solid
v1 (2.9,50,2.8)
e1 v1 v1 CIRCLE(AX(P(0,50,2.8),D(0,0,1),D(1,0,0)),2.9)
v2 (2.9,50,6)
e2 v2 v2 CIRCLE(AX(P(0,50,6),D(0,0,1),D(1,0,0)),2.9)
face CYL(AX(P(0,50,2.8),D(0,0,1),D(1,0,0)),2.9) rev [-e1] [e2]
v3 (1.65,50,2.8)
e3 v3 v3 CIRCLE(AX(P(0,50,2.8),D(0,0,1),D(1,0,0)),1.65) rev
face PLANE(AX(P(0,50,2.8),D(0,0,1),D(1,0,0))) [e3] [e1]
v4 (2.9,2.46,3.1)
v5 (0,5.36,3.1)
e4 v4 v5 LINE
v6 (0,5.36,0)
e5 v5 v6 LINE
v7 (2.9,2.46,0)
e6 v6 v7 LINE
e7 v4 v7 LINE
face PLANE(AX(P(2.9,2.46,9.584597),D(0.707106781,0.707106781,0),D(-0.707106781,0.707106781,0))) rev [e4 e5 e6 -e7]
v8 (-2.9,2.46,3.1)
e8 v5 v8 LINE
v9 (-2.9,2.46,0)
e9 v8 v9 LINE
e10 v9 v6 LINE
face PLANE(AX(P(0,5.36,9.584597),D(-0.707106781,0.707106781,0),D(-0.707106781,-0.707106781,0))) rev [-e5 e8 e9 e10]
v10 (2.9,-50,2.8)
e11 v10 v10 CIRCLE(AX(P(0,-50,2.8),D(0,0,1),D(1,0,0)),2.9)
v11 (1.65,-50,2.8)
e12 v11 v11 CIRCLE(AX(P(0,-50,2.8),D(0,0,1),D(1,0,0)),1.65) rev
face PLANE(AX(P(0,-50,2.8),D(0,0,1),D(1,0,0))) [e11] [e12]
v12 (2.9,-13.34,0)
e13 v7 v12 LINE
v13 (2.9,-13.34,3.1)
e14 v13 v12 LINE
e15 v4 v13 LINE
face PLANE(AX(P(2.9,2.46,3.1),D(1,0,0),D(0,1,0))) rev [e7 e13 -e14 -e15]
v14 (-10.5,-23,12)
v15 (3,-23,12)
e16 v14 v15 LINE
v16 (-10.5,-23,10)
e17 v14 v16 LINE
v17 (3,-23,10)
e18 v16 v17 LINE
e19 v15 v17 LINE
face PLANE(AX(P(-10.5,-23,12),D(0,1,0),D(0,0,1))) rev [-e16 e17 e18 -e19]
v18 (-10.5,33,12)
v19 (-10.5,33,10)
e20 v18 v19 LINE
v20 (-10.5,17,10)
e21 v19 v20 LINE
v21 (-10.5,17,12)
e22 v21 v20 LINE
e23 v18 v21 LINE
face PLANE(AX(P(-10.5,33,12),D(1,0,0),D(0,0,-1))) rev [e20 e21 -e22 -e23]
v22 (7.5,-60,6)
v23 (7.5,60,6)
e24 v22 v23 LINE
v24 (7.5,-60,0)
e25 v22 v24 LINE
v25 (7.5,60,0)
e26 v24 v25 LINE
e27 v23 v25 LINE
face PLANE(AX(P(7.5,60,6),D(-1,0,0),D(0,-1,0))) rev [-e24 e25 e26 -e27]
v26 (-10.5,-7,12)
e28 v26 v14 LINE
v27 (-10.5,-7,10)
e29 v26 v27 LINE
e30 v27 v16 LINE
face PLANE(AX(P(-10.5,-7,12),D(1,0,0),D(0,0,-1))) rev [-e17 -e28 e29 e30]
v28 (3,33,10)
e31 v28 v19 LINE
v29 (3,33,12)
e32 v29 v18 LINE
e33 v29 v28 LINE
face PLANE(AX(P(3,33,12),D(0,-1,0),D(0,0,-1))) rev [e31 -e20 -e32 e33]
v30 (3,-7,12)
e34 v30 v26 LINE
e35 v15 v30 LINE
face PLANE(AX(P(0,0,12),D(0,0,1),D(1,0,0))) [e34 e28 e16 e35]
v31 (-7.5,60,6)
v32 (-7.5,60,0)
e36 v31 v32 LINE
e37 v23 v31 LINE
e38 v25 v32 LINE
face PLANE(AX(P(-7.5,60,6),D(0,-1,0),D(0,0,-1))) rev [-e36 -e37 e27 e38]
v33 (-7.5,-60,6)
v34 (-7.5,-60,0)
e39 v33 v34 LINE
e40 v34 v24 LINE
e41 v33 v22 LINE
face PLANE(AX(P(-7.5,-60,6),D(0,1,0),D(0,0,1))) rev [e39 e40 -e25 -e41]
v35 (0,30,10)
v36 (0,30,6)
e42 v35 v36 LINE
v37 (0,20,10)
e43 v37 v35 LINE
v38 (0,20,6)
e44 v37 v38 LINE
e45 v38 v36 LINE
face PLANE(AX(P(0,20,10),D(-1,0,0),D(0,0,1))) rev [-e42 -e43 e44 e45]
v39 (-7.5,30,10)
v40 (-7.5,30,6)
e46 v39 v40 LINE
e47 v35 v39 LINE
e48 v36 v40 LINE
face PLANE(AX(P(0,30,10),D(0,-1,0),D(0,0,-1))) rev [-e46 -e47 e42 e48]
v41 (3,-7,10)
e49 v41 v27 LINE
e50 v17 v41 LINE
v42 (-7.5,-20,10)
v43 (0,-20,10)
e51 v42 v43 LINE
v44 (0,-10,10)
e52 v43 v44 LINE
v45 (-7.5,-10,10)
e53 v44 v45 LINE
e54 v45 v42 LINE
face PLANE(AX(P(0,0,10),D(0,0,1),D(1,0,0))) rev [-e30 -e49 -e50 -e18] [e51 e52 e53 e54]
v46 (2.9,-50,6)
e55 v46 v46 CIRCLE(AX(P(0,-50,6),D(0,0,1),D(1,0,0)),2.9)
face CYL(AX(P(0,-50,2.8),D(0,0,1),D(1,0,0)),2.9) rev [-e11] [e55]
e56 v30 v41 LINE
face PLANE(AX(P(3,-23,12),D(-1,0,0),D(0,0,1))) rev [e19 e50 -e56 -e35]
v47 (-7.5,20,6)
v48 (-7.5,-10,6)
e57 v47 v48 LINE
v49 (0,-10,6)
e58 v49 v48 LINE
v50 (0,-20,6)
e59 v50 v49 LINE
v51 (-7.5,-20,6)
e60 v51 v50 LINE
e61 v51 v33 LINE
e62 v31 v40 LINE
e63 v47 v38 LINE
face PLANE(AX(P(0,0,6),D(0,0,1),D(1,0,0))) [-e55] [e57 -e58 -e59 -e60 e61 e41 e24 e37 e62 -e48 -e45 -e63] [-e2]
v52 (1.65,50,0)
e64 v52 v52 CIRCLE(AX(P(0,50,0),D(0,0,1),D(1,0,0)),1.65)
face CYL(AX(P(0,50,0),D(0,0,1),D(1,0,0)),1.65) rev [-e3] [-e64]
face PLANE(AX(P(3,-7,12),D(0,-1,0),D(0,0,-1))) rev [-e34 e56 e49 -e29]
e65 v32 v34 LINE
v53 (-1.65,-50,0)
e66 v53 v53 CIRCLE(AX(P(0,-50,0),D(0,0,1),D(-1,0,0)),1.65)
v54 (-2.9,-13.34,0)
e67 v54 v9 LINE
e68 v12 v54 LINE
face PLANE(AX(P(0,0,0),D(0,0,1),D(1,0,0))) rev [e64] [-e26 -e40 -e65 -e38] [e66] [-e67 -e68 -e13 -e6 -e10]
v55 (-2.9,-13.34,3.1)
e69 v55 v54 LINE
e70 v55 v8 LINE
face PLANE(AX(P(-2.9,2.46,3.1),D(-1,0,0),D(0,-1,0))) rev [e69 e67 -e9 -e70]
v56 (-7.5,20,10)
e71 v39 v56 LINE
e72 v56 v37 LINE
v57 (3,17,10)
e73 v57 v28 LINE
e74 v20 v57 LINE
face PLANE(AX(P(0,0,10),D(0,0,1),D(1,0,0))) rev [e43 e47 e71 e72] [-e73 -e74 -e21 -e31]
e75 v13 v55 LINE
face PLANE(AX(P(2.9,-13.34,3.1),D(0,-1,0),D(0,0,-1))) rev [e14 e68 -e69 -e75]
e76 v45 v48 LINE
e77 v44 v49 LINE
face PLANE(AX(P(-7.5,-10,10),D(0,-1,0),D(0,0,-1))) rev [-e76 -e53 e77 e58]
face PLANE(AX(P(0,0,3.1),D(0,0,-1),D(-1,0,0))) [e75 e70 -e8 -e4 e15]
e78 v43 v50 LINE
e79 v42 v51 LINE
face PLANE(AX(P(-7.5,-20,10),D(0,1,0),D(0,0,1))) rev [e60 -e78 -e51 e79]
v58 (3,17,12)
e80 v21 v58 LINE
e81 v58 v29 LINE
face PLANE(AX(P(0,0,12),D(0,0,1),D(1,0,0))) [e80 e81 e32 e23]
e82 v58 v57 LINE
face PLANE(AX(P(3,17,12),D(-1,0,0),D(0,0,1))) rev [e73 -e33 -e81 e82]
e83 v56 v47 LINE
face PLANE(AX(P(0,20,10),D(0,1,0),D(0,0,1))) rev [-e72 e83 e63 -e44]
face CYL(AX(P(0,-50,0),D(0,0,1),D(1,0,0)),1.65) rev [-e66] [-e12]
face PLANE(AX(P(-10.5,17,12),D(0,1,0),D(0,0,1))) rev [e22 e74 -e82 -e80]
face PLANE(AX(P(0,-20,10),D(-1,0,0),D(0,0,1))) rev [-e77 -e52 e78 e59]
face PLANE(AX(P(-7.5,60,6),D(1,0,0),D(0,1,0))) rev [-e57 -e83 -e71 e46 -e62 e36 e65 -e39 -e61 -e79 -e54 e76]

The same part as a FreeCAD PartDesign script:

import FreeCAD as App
import Part
import Sketcher


def add_polygon(sketch, points):
    """Adds a closed chain of lines whose ends are joined by coincident constraints."""
    first, n = sketch.GeometryCount, len(points)
    for a, b in zip(points, points[1:] + points[:1]):
        sketch.addGeometry(Part.LineSegment(App.Vector(*a, 0), App.Vector(*b, 0)), False)
    for i in range(n):
        sketch.addConstraint(Sketcher.Constraint("Coincident", first + i, 2, first + (i + 1) % n, 1))

doc = App.newDocument("Part")
body = doc.addObject("PartDesign::Body", "Body")

# Sketch on XY plane
sketch1 = body.newObject("Sketcher::SketchObject", "Sketch")
sketch1.AttachmentSupport = (doc.getObject("XY_Plane"), [""])
sketch1.MapMode = "FlatFace"
add_polygon(sketch1, [(-8, 60), (-8, -60), (8, -60), (8, 60)])  # lines 0-3
sketch1.addConstraint([
    Sketcher.Constraint("Vertical", 0),
    Sketcher.Constraint("Horizontal", 1),
    Sketcher.Constraint("Vertical", 2),
    Sketcher.Constraint("Horizontal", 3),
    Sketcher.Constraint("Symmetric", 0, 2, 2, 2, -1, 1),
    Sketcher.Constraint("DistanceX", 1, 1, 1, 2, 15.0),
    Sketcher.Constraint("DistanceY", 0, 2, 0, 1, 120.0),
])
pad1 = body.newObject("PartDesign::Pad", "Pad")
pad1.Profile = sketch1
pad1.Length = 6

# Sketch on XY plane
sketch2 = body.newObject("Sketcher::SketchObject", "Sketch001")
sketch2.AttachmentSupport = (doc.getObject("XY_Plane"), [""])
sketch2.MapMode = "FlatFace"
sketch2.AttachmentOffset = App.Placement(App.Vector(0, 0, 6), App.Rotation())
sketch2.addGeometry([
    Part.Circle(App.Vector(0, 50, 0), App.Vector(0, 0, 1), 1.6),
    Part.Circle(App.Vector(0, -50, 0), App.Vector(0, 0, 1), 1.6),
], False)
sketch2.addConstraint([
    Sketcher.Constraint("Equal", 0, 1),
    Sketcher.Constraint("Symmetric", 0, 3, 1, 3, -1, 1),
    Sketcher.Constraint("PointOnObject", 0, 3, -2),
    Sketcher.Constraint("Diameter", 0, 3.3),
    Sketcher.Constraint("DistanceY", -1, 1, 0, 3, 50.0),
])
pocket1 = body.newObject("PartDesign::Pocket", "Pocket")
pocket1.Profile = sketch2
pocket1.Type = "ThroughAll"

# Sketch on XY plane
sketch3 = body.newObject("Sketcher::SketchObject", "Sketch002")
sketch3.AttachmentSupport = (doc.getObject("XY_Plane"), [""])
sketch3.MapMode = "FlatFace"
add_polygon(sketch3, [(3, 2), (3, -13), (-3, -13), (-3, 2)])  # lines 0-3
sketch3.addConstraint([
    Sketcher.Constraint("Vertical", 0),
    Sketcher.Constraint("Horizontal", 1),
    Sketcher.Constraint("Vertical", 2),
    Sketcher.Constraint("Horizontal", 3),
    Sketcher.Constraint("DistanceX", 1, 2, 1, 1, 5.8),
    Sketcher.Constraint("DistanceY", 0, 2, 0, 1, 15.8),
    Sketcher.Constraint("DistanceX", -1, 1, 0, 2, 2.9),
    Sketcher.Constraint("DistanceY", 0, 2, -1, 1, 13.34),
])
pocket2 = body.newObject("PartDesign::Pocket", "Pocket001")
pocket2.Profile = sketch3
pocket2.Length = 3.1
pocket2.Reversed = True

# Sketch on XY plane
sketch4 = body.newObject("Sketcher::SketchObject", "Sketch003")
sketch4.AttachmentSupport = (doc.getObject("XY_Plane"), [""])
sketch4.MapMode = "FlatFace"
add_polygon(sketch4, [(0, 5.4), (2.9, 2.5), (-2.9, 2.5)])  # lines 0-2
sketch4.addConstraint([
    Sketcher.Constraint("Horizontal", 1),
    Sketcher.Constraint("PointOnObject", 2, 2, -2),
    Sketcher.Constraint("Perpendicular", 0, 2),
    Sketcher.Constraint("Equal", 0, 2),
    Sketcher.Constraint("DistanceX", 1, 2, 1, 1, 5.8),
    Sketcher.Constraint("DistanceY", -1, 1, 0, 2, 2.46),
])
pocket3 = body.newObject("PartDesign::Pocket", "Pocket002")
pocket3.Profile = sketch4
pocket3.Length = 3.1
pocket3.Reversed = True

# Sketch on XY plane
sketch5 = body.newObject("Sketcher::SketchObject", "Sketch004")
sketch5.AttachmentSupport = (doc.getObject("XY_Plane"), [""])
sketch5.MapMode = "FlatFace"
sketch5.AttachmentOffset = App.Placement(App.Vector(0, 0, 6), App.Rotation())
sketch5.addGeometry([
    Part.Circle(App.Vector(0, 50, 0), App.Vector(0, 0, 1), 2.9),
    Part.Circle(App.Vector(0, -50, 0), App.Vector(0, 0, 1), 2.9),
], False)
sketch5.addConstraint([
    Sketcher.Constraint("Equal", 0, 1),
    Sketcher.Constraint("Symmetric", 0, 3, 1, 3, -1, 1),
    Sketcher.Constraint("PointOnObject", 0, 3, -2),
    Sketcher.Constraint("Diameter", 0, 5.8),
    Sketcher.Constraint("DistanceY", -1, 1, 0, 3, 50.0),
])
pocket4 = body.newObject("PartDesign::Pocket", "Pocket003")
pocket4.Profile = sketch5
pocket4.Length = 3.2

# Sketch on XY plane
sketch6 = body.newObject("Sketcher::SketchObject", "Sketch005")
sketch6.AttachmentSupport = (doc.getObject("XY_Plane"), [""])
sketch6.MapMode = "FlatFace"
sketch6.AttachmentOffset = App.Placement(App.Vector(0, 0, 6), App.Rotation())
add_polygon(sketch6, [(-8, -10), (-8, -20), (0, -20), (0, -10)])  # lines 0-3
add_polygon(sketch6, [(-8, 30), (-8, 20), (0, 20), (0, 30)])  # lines 4-7
sketch6.addConstraint([
    Sketcher.Constraint("Vertical", 0),
    Sketcher.Constraint("Horizontal", 1),
    Sketcher.Constraint("Vertical", 2),
    Sketcher.Constraint("Horizontal", 3),
    Sketcher.Constraint("Vertical", 4),
    Sketcher.Constraint("Horizontal", 5),
    Sketcher.Constraint("Vertical", 6),
    Sketcher.Constraint("Horizontal", 7),
    Sketcher.Constraint("Symmetric", 1, 2, 5, 2, -1, 1),
    Sketcher.Constraint("PointOnObject", 1, 2, -2),
    Sketcher.Constraint("Vertical", 3, 2, 4, 2),
    Sketcher.Constraint("Equal", 2, 4),
    Sketcher.Constraint("DistanceY", 0, 2, 0, 1, 10.0),
    Sketcher.Constraint("DistanceX", 1, 1, 1, 2, 7.5),
    Sketcher.Constraint("DistanceY", 0, 2, -1, 1, 20.0),
])
pad2 = body.newObject("PartDesign::Pad", "Pad001")
pad2.Profile = sketch6
pad2.Length = 4

# Sketch on XY plane
sketch7 = body.newObject("Sketcher::SketchObject", "Sketch006")
sketch7.AttachmentSupport = (doc.getObject("XY_Plane"), [""])
sketch7.MapMode = "FlatFace"
sketch7.AttachmentOffset = App.Placement(App.Vector(0, 0, 10), App.Rotation())
add_polygon(sketch7, [(-10, 33), (-10, 17), (3, 17), (3, 33)])  # lines 0-3
add_polygon(sketch7, [(-10, -7), (-10, -23), (3, -23), (3, -7)])  # lines 4-7
sketch7.addConstraint([
    Sketcher.Constraint("Vertical", 0),
    Sketcher.Constraint("Horizontal", 1),
    Sketcher.Constraint("Vertical", 2),
    Sketcher.Constraint("Horizontal", 3),
    Sketcher.Constraint("Vertical", 4),
    Sketcher.Constraint("Horizontal", 5),
    Sketcher.Constraint("Vertical", 6),
    Sketcher.Constraint("Horizontal", 7),
    Sketcher.Constraint("Vertical", 3, 2, 4, 2),
    Sketcher.Constraint("Vertical", 2, 2, 5, 2),
    Sketcher.Constraint("Equal", 2, 4),
    Sketcher.Constraint("DistanceY", 0, 2, 0, 1, 16.0),
    Sketcher.Constraint("DistanceX", 1, 1, 1, 2, 13.5),
    Sketcher.Constraint("DistanceY", -1, 1, 0, 2, 17.0),
    Sketcher.Constraint("DistanceX", -1, 1, 1, 2, 3.0),
    Sketcher.Constraint("DistanceY", 4, 2, -1, 1, 23.0),
])
pad3 = body.newObject("PartDesign::Pad", "Pad002")
pad3.Profile = sketch7
pad3.Length = 2

doc.recompute()
